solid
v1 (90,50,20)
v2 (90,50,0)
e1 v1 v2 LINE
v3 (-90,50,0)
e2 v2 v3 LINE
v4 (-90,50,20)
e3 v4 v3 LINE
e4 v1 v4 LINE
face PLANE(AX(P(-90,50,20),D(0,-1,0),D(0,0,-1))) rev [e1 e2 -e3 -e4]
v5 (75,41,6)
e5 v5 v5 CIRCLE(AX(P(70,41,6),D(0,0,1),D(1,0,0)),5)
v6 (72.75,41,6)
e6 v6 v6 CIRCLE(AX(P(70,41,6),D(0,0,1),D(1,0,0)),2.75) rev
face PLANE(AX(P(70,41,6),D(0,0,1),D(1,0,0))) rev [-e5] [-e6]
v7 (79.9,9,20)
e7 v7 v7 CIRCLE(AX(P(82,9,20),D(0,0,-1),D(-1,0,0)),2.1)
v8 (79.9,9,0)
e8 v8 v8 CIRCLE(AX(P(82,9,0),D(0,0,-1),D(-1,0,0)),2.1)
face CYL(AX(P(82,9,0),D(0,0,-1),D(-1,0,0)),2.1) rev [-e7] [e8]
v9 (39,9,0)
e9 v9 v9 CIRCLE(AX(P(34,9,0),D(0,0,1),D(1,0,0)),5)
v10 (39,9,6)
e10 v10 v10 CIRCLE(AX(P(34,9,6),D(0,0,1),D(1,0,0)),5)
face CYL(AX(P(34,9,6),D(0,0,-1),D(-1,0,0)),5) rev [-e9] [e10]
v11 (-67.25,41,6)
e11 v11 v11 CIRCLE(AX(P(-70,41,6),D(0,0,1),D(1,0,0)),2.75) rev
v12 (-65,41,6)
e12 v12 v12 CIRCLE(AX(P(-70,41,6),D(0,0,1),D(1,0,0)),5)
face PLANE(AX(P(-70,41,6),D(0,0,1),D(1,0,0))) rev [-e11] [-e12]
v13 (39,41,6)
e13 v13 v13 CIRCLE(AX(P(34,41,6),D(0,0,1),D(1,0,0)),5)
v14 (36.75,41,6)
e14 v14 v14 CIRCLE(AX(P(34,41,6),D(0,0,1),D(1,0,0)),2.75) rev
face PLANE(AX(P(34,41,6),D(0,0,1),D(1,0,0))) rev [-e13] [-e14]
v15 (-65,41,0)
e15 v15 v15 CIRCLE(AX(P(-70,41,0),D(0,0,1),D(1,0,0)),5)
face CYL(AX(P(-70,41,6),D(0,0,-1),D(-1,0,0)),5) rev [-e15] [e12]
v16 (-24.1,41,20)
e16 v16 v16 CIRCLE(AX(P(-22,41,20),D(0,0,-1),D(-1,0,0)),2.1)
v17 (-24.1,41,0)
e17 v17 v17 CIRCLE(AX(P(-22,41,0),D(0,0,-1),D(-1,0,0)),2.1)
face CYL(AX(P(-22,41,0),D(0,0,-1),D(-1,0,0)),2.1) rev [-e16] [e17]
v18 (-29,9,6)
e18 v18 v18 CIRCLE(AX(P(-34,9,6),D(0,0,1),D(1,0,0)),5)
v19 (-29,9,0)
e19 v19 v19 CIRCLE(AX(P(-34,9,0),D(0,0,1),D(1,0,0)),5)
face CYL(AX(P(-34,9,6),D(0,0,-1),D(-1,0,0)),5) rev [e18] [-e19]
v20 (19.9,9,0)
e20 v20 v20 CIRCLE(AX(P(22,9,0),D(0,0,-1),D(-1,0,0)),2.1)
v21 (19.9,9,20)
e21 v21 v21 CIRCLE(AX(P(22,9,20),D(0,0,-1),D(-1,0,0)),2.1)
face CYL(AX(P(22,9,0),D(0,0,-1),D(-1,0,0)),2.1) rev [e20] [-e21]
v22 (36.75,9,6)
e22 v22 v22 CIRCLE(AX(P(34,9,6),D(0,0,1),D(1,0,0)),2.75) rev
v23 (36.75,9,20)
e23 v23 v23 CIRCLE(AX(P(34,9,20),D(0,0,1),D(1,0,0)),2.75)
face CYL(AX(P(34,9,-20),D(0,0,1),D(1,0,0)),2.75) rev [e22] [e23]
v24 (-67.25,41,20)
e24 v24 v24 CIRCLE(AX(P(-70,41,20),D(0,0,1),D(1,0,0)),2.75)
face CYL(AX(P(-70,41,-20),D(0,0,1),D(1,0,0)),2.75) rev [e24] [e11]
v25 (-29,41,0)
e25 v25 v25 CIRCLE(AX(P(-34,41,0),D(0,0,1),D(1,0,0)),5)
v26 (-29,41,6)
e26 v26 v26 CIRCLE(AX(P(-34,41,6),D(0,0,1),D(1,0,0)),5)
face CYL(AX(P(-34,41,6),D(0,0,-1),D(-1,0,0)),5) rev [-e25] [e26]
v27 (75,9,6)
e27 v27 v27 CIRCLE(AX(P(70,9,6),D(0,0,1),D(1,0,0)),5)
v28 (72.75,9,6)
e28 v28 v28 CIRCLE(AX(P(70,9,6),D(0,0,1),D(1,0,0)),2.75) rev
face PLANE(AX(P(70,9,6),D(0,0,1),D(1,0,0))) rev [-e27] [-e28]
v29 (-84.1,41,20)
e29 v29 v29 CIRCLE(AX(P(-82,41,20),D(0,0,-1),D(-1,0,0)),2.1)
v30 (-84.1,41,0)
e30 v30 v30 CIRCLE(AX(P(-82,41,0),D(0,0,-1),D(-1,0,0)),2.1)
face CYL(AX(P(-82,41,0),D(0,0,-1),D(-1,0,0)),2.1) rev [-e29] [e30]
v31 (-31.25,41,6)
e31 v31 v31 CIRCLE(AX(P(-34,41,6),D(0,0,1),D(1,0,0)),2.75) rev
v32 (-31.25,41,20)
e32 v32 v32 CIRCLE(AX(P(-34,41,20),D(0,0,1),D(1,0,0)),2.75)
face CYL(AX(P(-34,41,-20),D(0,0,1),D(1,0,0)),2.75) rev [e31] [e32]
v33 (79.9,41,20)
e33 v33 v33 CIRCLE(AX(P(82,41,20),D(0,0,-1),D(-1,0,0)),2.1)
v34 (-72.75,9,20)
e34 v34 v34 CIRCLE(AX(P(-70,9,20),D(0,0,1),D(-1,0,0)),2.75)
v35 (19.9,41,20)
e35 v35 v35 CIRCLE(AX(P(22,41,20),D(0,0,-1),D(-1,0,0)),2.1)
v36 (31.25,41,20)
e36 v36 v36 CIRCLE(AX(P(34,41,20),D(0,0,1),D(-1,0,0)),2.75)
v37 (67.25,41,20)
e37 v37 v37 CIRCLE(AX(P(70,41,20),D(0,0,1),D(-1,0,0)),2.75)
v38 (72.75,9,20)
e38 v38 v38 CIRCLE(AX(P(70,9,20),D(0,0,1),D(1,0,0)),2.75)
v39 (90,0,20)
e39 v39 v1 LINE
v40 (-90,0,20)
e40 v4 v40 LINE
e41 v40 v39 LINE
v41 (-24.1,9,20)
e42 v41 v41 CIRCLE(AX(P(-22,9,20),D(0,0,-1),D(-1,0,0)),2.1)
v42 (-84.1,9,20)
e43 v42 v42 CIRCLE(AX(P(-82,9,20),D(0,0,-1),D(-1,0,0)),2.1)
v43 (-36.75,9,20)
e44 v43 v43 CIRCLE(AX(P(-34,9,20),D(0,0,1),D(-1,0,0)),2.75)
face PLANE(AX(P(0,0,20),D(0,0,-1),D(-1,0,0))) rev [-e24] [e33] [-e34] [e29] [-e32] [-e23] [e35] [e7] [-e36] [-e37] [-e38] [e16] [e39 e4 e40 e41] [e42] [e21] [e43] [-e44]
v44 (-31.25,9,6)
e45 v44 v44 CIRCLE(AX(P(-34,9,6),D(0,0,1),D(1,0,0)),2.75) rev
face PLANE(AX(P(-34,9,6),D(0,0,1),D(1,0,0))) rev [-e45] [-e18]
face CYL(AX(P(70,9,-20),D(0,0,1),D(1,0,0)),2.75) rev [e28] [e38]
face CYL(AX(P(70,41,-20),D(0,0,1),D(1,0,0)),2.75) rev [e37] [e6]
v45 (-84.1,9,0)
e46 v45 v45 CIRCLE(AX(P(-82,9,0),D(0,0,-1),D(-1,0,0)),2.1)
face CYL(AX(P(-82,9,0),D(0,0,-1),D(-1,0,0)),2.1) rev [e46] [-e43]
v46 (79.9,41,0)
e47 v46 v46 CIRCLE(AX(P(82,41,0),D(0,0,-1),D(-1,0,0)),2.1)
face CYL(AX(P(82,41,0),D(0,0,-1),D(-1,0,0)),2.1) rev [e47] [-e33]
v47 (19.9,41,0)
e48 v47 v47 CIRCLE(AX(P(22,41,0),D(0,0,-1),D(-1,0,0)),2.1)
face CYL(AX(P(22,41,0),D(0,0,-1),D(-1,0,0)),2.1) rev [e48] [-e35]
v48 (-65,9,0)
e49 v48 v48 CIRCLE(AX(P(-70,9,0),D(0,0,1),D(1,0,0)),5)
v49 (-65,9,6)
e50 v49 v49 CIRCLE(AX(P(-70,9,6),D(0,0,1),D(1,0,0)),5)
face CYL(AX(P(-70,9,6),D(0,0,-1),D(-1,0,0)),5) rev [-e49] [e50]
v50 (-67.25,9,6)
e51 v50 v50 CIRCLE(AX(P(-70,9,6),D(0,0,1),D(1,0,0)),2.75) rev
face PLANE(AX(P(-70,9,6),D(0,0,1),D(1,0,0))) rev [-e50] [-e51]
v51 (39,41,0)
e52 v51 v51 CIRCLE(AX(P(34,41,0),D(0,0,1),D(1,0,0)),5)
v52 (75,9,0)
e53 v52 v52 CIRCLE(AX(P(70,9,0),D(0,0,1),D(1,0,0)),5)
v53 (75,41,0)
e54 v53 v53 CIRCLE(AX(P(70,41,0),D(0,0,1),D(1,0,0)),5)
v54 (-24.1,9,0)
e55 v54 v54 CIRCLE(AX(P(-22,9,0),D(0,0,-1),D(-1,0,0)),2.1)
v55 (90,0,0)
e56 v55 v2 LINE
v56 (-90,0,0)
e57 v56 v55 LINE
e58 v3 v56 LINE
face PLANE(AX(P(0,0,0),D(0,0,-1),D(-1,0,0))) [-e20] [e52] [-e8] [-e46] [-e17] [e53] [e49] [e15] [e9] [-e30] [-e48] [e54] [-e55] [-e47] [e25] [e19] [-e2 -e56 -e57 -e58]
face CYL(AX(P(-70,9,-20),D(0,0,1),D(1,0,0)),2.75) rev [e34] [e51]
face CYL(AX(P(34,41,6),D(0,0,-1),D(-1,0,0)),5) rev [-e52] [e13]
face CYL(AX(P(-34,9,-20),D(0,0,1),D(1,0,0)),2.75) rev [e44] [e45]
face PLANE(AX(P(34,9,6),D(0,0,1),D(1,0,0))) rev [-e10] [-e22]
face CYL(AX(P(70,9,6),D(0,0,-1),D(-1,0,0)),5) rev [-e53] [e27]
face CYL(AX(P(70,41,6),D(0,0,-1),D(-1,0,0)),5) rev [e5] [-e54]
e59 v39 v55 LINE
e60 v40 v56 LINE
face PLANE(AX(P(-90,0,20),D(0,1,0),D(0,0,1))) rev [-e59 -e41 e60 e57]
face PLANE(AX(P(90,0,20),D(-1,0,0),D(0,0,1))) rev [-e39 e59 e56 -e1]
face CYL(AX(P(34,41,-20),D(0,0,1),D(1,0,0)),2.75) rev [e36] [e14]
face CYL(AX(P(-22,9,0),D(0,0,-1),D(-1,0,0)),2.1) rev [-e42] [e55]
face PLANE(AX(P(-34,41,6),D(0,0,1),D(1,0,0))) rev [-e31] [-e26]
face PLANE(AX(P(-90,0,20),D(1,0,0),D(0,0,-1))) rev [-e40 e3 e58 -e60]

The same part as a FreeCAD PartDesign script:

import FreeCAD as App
import Part
import Sketcher

V = App.Vector
Q = App.Units.Quantity


def add_polygon(sketch, points):
    """Adds a closed chain of lines whose ends are joined by coincident constraints."""
    first, n = sketch.GeometryCount, len(points)
    for a, b in zip(points, points[1:] + points[:1]):
        sketch.addGeometry(Part.LineSegment(App.Vector(*a, 0), App.Vector(*b, 0)), False)
    for i in range(n):
        sketch.addConstraint(Sketcher.Constraint("Coincident", first + i, 2, first + (i + 1) % n, 1))

doc = App.newDocument("Part")
body = doc.addObject("PartDesign::Body", "Body")

sketch1 = body.newObject("Sketcher::SketchObject", "Sketch")
sketch1.AttachmentSupport = (doc.getObject("XY_Plane"), [""])
sketch1.MapMode = "FlatFace"
add_polygon(sketch1, [(-90, 50), (-90, 0), (90, 0), (90, 50)])
sketch1.addConstraint([
    Sketcher.Constraint("Vertical", 0),
    Sketcher.Constraint("Horizontal", 1),
    Sketcher.Constraint("Vertical", 2),
    Sketcher.Constraint("Horizontal", 3),
    Sketcher.Constraint("Symmetric", 0, 2, 1, 2, -1, 1),
    Sketcher.Constraint("DistanceX", 1, 1, 1, 2, Q("180 mm")),
    Sketcher.Constraint("DistanceY", 0, 2, 0, 1, Q("50 mm")),
])
pad1 = body.newObject("PartDesign::Pad", "Pad")
pad1.Profile = sketch1
pad1.Length = 20

sketch2 = body.newObject("Sketcher::SketchObject", "Sketch001")
sketch2.AttachmentSupport = (doc.getObject("XY_Plane"), [""])
sketch2.MapMode = "FlatFace"
sketch2.AttachmentOffset = App.Placement(V(0, 0, 20), App.Rotation())
sketch2.addGeometry([
    Part.Circle(V(34, 9, 0), V(0, 0, 1), 2.8),
    Part.Circle(V(70, 9, 0), V(0, 0, 1), 2.8),
    Part.Circle(V(70, 41, 0), V(0, 0, 1), 2.8),
    Part.Circle(V(34, 41, 0), V(0, 0, 1), 2.8),
    Part.Circle(V(-34, 9, 0), V(0, 0, 1), 2.8),
    Part.Circle(V(-70, 9, 0), V(0, 0, 1), 2.8),
    Part.Circle(V(-70, 41, 0), V(0, 0, 1), 2.8),
    Part.Circle(V(-34, 41, 0), V(0, 0, 1), 2.8),
], False)
sketch2.addConstraint([
    Sketcher.Constraint("Equal", 0, 1),
    Sketcher.Constraint("Equal", 1, 2),
    Sketcher.Constraint("Equal", 2, 3),
    Sketcher.Constraint("Equal", 3, 4),
    Sketcher.Constraint("Equal", 4, 5),
    Sketcher.Constraint("Equal", 5, 6),
    Sketcher.Constraint("Equal", 6, 7),
    Sketcher.Constraint("Symmetric", 0, 3, 4, 3, -2),
    Sketcher.Constraint("Symmetric", 1, 3, 5, 3, -2),
    Sketcher.Constraint("Symmetric", 2, 3, 6, 3, -2),
    Sketcher.Constraint("Symmetric", 3, 3, 7, 3, -2),
    Sketcher.Constraint("Horizontal", 0, 3, 1, 3),
    Sketcher.Constraint("Horizontal", 2, 3, 3, 3),
    Sketcher.Constraint("Vertical", 1, 3, 2, 3),
    Sketcher.Constraint("Vertical", 0, 3, 3, 3),
    Sketcher.Constraint("Diameter", 0, Q("5.5 mm")),
    Sketcher.Constraint("DistanceX", -1, 1, 0, 3, Q("34 mm")),
    Sketcher.Constraint("DistanceY", -1, 1, 0, 3, Q("9 mm")),
    Sketcher.Constraint("DistanceX", -1, 1, 1, 3, Q("70 mm")),
    Sketcher.Constraint("DistanceY", -1, 1, 2, 3, Q("41 mm")),
])
pocket1 = body.newObject("PartDesign::Pocket", "Pocket")
pocket1.Profile = sketch2
pocket1.Length = 40

sketch3 = body.newObject("Sketcher::SketchObject", "Sketch002")
sketch3.AttachmentSupport = (doc.getObject("XY_Plane"), [""])
sketch3.MapMode = "FlatFace"
sketch3.addGeometry([
    Part.Circle(V(-70, 41, 0), V(0, 0, 1), 5),
    Part.Circle(V(-34, 41, 0), V(0, 0, 1), 5),
    Part.Circle(V(34, 41, 0), V(0, 0, 1), 5),
    Part.Circle(V(70, 41, 0), V(0, 0, 1), 5),
    Part.Circle(V(70, 9, 0), V(0, 0, 1), 5),
    Part.Circle(V(34, 9, 0), V(0, 0, 1), 5),
    Part.Circle(V(-34, 9, 0), V(0, 0, 1), 5),
    Part.Circle(V(-70, 9, 0), V(0, 0, 1), 5),
], False)
sketch3.addConstraint([
    Sketcher.Constraint("Equal", 0, 1),
    Sketcher.Constraint("Equal", 1, 2),
    Sketcher.Constraint("Equal", 2, 3),
    Sketcher.Constraint("Equal", 3, 4),
    Sketcher.Constraint("Equal", 4, 5),
    Sketcher.Constraint("Equal", 5, 6),
    Sketcher.Constraint("Equal", 6, 7),
    Sketcher.Constraint("Symmetric", 1, 3, 2, 3, -2),
    Sketcher.Constraint("Symmetric", 0, 3, 3, 3, -2),
    Sketcher.Constraint("Symmetric", 5, 3, 6, 3, -2),
    Sketcher.Constraint("Symmetric", 4, 3, 7, 3, -2),
    Sketcher.Constraint("Horizontal", 0, 3, 1, 3),
    Sketcher.Constraint("Horizontal", 4, 3, 5, 3),
    Sketcher.Constraint("Vertical", 3, 3, 4, 3),
    Sketcher.Constraint("Vertical", 2, 3, 5, 3),
    Sketcher.Constraint("Diameter", 0, Q("10 mm")),
    Sketcher.Constraint("DistanceX", 0, 3, -1, 1, Q("70 mm")),
    Sketcher.Constraint("DistanceY", -1, 1, 0, 3, Q("41 mm")),
    Sketcher.Constraint("DistanceX", 1, 3, -1, 1, Q("34 mm")),
    Sketcher.Constraint("DistanceY", -1, 1, 4, 3, Q("9 mm")),
])
pocket2 = body.newObject("PartDesign::Pocket", "Pocket001")
pocket2.Profile = sketch3
pocket2.Length = 6
pocket2.Reversed = True

sketch4 = body.newObject("Sketcher::SketchObject", "Sketch003")
sketch4.AttachmentSupport = (doc.getObject("XY_Plane"), [""])
sketch4.MapMode = "FlatFace"
sketch4.addGeometry([
    Part.Circle(V(22, 9, 0), V(0, 0, 1), 2.1),
    Part.Circle(V(-82, 41, 0), V(0, 0, 1), 2.1),
    Part.Circle(V(-22, 41, 0), V(0, 0, 1), 2.1),
    Part.Circle(V(-82, 9, 0), V(0, 0, 1), 2.1),
    Part.Circle(V(-22, 9, 0), V(0, 0, 1), 2.1),
    Part.Circle(V(82, 9, 0), V(0, 0, 1), 2.1),
    Part.Circle(V(82, 41, 0), V(0, 0, 1), 2.1),
    Part.Circle(V(22, 41, 0), V(0, 0, 1), 2.1),
], False)
sketch4.addConstraint([
    Sketcher.Constraint("Equal", 0, 1),
    Sketcher.Constraint("Equal", 1, 2),
    Sketcher.Constraint("Equal", 2, 3),
    Sketcher.Constraint("Equal", 3, 4),
    Sketcher.Constraint("Equal", 4, 5),
    Sketcher.Constraint("Equal", 5, 6),
    Sketcher.Constraint("Equal", 6, 7),
    Sketcher.Constraint("Symmetric", 0, 3, 4, 3, -2),
    Sketcher.Constraint("Symmetric", 3, 3, 5, 3, -2),
    Sketcher.Constraint("Symmetric", 1, 3, 6, 3, -2),
    Sketcher.Constraint("Symmetric", 2, 3, 7, 3, -2),
    Sketcher.Constraint("Horizontal", 1, 3, 2, 3),
    Sketcher.Constraint("Horizontal", 0, 3, 3, 3),
    Sketcher.Constraint("Vertical", 1, 3, 3, 3),
    Sketcher.Constraint("Vertical", 2, 3, 4, 3),
    Sketcher.Constraint("Diameter", 0, Q("4.2 mm")),
    Sketcher.Constraint("DistanceX", -1, 1, 0, 3, Q("22 mm")),
    Sketcher.Constraint("DistanceY", -1, 1, 0, 3, Q("9 mm")),
    Sketcher.Constraint("DistanceX", 1, 3, -1, 1, Q("82 mm")),
    Sketcher.Constraint("DistanceY", -1, 1, 1, 3, Q("41 mm")),
])
doc.recompute()
hole = body.newObject("PartDesign::Hole", "Hole")
hole.Profile = sketch4
hole.ThreadType = "None"
hole.Diameter = 4.2
hole.DepthType = "Dimension"
hole.Depth = 34
hole.DrillPoint = "Angled"
hole.DrillPointAngle = 118
hole.Reversed = True

doc.recompute()
